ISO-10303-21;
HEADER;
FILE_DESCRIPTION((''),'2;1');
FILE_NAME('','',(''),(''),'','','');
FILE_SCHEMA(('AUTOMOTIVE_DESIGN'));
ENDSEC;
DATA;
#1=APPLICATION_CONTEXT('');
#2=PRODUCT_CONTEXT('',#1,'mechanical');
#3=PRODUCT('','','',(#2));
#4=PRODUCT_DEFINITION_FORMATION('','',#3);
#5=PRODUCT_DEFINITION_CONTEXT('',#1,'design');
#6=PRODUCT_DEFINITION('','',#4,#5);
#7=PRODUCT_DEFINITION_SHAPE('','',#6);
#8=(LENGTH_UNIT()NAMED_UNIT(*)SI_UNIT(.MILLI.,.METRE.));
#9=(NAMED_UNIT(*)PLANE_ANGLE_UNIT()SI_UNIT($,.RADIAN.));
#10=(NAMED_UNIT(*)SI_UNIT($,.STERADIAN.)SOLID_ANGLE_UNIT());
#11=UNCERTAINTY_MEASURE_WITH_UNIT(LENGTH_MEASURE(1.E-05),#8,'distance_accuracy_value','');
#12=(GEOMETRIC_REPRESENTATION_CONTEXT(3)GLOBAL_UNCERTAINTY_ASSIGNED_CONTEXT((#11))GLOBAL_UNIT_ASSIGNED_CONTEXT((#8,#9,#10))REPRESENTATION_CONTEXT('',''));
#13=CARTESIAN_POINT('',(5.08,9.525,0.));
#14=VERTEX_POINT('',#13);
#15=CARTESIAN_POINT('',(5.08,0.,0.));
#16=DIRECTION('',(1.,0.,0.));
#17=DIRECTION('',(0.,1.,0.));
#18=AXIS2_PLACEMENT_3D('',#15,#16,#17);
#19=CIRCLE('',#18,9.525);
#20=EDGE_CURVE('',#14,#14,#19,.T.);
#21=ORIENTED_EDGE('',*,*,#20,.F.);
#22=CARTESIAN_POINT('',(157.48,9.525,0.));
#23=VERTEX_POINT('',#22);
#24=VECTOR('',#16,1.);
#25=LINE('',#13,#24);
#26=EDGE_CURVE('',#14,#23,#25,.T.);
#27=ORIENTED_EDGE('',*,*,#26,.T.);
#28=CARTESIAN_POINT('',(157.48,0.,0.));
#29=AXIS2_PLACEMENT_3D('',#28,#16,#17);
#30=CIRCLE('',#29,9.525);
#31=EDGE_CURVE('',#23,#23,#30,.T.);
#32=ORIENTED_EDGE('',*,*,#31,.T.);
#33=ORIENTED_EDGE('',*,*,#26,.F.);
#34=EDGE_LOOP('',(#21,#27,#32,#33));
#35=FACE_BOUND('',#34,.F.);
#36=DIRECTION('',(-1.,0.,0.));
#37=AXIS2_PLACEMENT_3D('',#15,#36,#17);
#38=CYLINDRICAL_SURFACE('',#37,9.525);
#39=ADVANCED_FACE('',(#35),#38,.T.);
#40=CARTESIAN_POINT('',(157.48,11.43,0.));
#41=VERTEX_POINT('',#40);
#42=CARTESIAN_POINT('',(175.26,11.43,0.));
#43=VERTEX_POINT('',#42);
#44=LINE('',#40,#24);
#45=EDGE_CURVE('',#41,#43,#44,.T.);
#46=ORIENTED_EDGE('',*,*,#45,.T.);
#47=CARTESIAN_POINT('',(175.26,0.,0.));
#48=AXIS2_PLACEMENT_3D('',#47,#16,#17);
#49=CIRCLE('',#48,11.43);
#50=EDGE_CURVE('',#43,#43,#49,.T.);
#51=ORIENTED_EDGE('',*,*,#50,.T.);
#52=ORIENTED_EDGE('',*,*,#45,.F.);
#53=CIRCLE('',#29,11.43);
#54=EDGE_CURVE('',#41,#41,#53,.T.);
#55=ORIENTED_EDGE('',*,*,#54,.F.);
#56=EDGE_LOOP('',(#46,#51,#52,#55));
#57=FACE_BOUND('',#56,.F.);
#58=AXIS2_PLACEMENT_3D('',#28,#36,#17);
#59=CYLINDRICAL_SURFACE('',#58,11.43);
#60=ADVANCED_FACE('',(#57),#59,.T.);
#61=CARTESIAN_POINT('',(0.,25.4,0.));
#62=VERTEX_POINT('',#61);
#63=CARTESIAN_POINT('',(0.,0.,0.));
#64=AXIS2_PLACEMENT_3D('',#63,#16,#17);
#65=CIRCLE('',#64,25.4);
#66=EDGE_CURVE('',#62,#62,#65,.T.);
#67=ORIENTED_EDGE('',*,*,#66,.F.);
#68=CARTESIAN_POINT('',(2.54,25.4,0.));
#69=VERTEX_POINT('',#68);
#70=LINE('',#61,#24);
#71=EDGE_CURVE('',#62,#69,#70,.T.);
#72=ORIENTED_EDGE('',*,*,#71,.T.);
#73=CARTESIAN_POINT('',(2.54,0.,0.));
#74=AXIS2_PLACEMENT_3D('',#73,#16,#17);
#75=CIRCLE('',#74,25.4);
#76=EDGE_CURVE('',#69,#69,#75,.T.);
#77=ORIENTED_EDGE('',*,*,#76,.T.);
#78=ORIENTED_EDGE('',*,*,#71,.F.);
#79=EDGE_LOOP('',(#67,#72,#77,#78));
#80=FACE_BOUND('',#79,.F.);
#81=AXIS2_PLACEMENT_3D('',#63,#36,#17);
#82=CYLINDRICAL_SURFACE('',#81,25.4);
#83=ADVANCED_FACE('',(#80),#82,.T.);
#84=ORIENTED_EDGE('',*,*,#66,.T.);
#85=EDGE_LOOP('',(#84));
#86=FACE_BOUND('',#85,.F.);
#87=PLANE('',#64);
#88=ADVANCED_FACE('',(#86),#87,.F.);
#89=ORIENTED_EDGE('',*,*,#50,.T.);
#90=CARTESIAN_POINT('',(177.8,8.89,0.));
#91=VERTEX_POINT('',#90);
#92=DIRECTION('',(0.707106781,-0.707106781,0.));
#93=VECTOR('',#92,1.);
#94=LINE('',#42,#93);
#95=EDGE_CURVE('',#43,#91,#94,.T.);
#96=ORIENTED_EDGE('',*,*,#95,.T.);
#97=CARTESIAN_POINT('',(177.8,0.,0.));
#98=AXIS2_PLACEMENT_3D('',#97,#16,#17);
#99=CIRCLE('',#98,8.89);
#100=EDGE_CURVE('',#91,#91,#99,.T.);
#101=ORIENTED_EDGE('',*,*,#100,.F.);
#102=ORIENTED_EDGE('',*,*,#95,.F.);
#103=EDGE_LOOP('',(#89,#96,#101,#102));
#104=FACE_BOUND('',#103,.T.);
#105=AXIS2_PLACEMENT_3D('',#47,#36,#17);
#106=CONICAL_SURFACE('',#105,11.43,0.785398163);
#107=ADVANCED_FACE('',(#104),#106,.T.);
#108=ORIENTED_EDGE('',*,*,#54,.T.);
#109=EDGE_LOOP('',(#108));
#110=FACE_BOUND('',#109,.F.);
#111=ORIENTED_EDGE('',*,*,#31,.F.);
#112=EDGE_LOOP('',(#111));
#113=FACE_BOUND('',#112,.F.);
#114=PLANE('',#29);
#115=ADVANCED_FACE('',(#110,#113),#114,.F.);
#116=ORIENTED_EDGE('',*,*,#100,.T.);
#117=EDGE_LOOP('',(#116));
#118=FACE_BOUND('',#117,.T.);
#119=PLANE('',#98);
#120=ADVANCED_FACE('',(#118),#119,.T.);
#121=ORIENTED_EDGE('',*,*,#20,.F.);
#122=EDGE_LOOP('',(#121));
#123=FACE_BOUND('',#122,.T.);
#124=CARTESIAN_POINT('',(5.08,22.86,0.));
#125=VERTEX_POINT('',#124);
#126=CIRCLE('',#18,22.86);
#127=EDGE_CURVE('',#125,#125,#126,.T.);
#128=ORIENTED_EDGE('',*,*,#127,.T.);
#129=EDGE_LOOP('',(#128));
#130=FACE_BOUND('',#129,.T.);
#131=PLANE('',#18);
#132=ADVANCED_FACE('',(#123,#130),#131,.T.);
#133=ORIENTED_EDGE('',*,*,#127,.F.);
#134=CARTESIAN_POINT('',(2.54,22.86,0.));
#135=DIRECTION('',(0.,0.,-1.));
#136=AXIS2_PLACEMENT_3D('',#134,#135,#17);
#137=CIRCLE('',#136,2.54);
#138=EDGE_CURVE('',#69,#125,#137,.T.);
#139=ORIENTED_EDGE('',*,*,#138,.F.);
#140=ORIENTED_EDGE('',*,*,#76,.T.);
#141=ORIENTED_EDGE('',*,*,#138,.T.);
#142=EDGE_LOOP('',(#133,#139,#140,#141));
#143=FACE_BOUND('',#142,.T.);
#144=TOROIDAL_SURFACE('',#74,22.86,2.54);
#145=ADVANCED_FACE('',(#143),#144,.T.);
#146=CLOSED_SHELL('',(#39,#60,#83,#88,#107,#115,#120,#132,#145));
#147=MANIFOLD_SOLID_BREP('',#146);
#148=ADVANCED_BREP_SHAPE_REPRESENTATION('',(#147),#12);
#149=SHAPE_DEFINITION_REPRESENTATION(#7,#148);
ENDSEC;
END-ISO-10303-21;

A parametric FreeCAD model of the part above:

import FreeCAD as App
import Part
import Sketcher

V = App.Vector
Q = App.Units.Quantity


def edges_at(feature, points):
    """Names of the edges that pass closest to the given points."""
    edges = feature.Shape.Edges
    near = lambda p: min(range(len(edges)), key=lambda i: edges[i].distToShape(Part.Vertex(*p))[0])
    return sorted({f"Edge{near(p) + 1}" for p in points})

doc = App.newDocument("Part")
body = doc.addObject("PartDesign::Body", "Body")

sketch1 = body.newObject("Sketcher::SketchObject", "Sketch")
sketch1.AttachmentSupport = (doc.getObject("YZ_Plane"), [""])
sketch1.MapMode = "FlatFace"
sketch1.addGeometry(Part.Circle(V(0, 0, 0), V(0, 0, 1), 25), False)
sketch1.addConstraint([
    Sketcher.Constraint("Coincident", 0, 3, -1, 1),
    Sketcher.Constraint("Diameter", 0, Q("2 in")),
])
pad1 = body.newObject("PartDesign::Pad", "Pad")
pad1.Profile = sketch1
pad1.Length = Q("0.2 in")
doc.recompute()

fillet = body.newObject("PartDesign::Fillet", "Fillet")
fillet.Base = (pad1, edges_at(pad1, [(5.08, -25.4, 0)]))
fillet.Radius = Q("0.1 in")

sketch2 = body.newObject("Sketcher::SketchObject", "Sketch001")
sketch2.AttachmentSupport = (doc.getObject("YZ_Plane"), [""])
sketch2.MapMode = "FlatFace"
sketch2.AttachmentOffset = App.Placement(V(0, 0, 0.2 * 25.4), App.Rotation())
sketch2.addGeometry(Part.Circle(V(0, 0, 0), V(0, 0, 1), 10), False)
sketch2.addConstraint([
    Sketcher.Constraint("Coincident", 0, 3, -1, 1),
    Sketcher.Constraint("Diameter", 0, Q("0.75 in")),
])
pad2 = body.newObject("PartDesign::Pad", "Pad001")
pad2.Profile = sketch2
pad2.Length = Q("6 in")

sketch3 = body.newObject("Sketcher::SketchObject", "Sketch002")
sketch3.AttachmentSupport = (doc.getObject("YZ_Plane"), [""])
sketch3.MapMode = "FlatFace"
sketch3.AttachmentOffset = App.Placement(V(0, 0, 6.2 * 25.4), App.Rotation())
sketch3.addGeometry(Part.Circle(V(0, 0, 0), V(0, 0, 1), 11), False)
sketch3.addConstraint([
    Sketcher.Constraint("Coincident", 0, 3, -1, 1),
    Sketcher.Constraint("Diameter", 0, Q("0.9 in")),
])
pad3 = body.newObject("PartDesign::Pad", "Pad002")
pad3.Profile = sketch3
pad3.Length = Q("0.8 in")
doc.recompute()

chamfer = body.newObject("PartDesign::Chamfer", "Chamfer")
chamfer.Base = (pad3, edges_at(pad3, [(177.8, -11.43, 0)]))
chamfer.Size = Q("0.1 in")

doc.recompute()
